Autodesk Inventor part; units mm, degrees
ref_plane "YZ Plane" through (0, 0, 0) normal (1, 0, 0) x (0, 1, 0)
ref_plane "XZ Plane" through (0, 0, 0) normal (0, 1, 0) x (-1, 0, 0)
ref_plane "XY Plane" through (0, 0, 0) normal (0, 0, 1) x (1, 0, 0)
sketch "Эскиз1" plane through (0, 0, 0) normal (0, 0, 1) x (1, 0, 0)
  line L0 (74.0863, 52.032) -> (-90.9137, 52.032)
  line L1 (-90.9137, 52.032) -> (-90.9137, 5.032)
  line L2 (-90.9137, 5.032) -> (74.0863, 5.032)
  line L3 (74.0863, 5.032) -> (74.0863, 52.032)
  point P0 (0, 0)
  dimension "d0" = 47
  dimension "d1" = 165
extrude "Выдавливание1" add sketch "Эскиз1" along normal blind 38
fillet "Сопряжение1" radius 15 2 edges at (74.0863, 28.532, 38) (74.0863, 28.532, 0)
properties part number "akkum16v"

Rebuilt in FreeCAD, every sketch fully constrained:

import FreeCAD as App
import Part
import Sketcher
from FreeCAD import Vector
Q = App.Units.Quantity


def edges_at(feature, points):
    """Names of the edges that pass closest to the given points."""
    edges = feature.Shape.Edges
    near = lambda p: min(range(len(edges)), key=lambda i: edges[i].distToShape(Part.Vertex(*p))[0])
    return sorted({f"Edge{near(p) + 1}" for p in points})

doc = App.newDocument("Part")
body = doc.addObject("PartDesign::Body", "Body")

sketch1 = doc.addObject("Sketcher::SketchObject", "Sketch")
body.addObject(sketch1)
sketch1.AttachmentSupport = (doc.XY_Plane, [""])
sketch1.MapMode = "FlatFace"
sketch1.addGeometry([
    Part.LineSegment(Vector(74.0863, 5.032, 0), Vector(74.0863, 52.032, 0)),
    Part.LineSegment(Vector(74.0863, 52.032, 0), Vector(-90.9137, 52.032, 0)),
    Part.LineSegment(Vector(-90.9137, 52.032, 0), Vector(-90.9137, 5.032, 0)),
    Part.LineSegment(Vector(-90.9137, 5.032, 0), Vector(74.0863, 5.032, 0)),
], False)
sketch1.addConstraint([
    Sketcher.Constraint("Coincident", 0, 2, 1, 1),
    Sketcher.Constraint("Coincident", 1, 2, 2, 1),
    Sketcher.Constraint("Coincident", 2, 2, 3, 1),
    Sketcher.Constraint("Coincident", 3, 2, 0, 1),
    Sketcher.Constraint("Vertical", 0),
    Sketcher.Constraint("Horizontal", 1),
    Sketcher.Constraint("Vertical", 2),
    Sketcher.Constraint("Horizontal", 3),
    Sketcher.Constraint("DistanceX", 1, 2, 1, 1, Q("165 mm")),
    Sketcher.Constraint("DistanceY", 0, 1, 0, 2, Q("47 mm")),
    Sketcher.Constraint("DistanceY", -1, 1, 0, 2, Q("52.032 mm")),
    Sketcher.Constraint("DistanceX", -1, 1, 0, 2, Q("74.0863 mm")),
])
pad1 = doc.addObject("PartDesign::Pad", "Pad")
body.addObject(pad1)
pad1.Profile = sketch1
pad1.Length = 38
doc.recompute()

fillet = doc.addObject("PartDesign::Fillet", "Fillet")
body.addObject(fillet)
fillet.Base = (pad1, edges_at(pad1, [(74.086, 28.532, 38), (74.086, 28.532, 0)]))
fillet.Radius = 15

doc.recompute()
